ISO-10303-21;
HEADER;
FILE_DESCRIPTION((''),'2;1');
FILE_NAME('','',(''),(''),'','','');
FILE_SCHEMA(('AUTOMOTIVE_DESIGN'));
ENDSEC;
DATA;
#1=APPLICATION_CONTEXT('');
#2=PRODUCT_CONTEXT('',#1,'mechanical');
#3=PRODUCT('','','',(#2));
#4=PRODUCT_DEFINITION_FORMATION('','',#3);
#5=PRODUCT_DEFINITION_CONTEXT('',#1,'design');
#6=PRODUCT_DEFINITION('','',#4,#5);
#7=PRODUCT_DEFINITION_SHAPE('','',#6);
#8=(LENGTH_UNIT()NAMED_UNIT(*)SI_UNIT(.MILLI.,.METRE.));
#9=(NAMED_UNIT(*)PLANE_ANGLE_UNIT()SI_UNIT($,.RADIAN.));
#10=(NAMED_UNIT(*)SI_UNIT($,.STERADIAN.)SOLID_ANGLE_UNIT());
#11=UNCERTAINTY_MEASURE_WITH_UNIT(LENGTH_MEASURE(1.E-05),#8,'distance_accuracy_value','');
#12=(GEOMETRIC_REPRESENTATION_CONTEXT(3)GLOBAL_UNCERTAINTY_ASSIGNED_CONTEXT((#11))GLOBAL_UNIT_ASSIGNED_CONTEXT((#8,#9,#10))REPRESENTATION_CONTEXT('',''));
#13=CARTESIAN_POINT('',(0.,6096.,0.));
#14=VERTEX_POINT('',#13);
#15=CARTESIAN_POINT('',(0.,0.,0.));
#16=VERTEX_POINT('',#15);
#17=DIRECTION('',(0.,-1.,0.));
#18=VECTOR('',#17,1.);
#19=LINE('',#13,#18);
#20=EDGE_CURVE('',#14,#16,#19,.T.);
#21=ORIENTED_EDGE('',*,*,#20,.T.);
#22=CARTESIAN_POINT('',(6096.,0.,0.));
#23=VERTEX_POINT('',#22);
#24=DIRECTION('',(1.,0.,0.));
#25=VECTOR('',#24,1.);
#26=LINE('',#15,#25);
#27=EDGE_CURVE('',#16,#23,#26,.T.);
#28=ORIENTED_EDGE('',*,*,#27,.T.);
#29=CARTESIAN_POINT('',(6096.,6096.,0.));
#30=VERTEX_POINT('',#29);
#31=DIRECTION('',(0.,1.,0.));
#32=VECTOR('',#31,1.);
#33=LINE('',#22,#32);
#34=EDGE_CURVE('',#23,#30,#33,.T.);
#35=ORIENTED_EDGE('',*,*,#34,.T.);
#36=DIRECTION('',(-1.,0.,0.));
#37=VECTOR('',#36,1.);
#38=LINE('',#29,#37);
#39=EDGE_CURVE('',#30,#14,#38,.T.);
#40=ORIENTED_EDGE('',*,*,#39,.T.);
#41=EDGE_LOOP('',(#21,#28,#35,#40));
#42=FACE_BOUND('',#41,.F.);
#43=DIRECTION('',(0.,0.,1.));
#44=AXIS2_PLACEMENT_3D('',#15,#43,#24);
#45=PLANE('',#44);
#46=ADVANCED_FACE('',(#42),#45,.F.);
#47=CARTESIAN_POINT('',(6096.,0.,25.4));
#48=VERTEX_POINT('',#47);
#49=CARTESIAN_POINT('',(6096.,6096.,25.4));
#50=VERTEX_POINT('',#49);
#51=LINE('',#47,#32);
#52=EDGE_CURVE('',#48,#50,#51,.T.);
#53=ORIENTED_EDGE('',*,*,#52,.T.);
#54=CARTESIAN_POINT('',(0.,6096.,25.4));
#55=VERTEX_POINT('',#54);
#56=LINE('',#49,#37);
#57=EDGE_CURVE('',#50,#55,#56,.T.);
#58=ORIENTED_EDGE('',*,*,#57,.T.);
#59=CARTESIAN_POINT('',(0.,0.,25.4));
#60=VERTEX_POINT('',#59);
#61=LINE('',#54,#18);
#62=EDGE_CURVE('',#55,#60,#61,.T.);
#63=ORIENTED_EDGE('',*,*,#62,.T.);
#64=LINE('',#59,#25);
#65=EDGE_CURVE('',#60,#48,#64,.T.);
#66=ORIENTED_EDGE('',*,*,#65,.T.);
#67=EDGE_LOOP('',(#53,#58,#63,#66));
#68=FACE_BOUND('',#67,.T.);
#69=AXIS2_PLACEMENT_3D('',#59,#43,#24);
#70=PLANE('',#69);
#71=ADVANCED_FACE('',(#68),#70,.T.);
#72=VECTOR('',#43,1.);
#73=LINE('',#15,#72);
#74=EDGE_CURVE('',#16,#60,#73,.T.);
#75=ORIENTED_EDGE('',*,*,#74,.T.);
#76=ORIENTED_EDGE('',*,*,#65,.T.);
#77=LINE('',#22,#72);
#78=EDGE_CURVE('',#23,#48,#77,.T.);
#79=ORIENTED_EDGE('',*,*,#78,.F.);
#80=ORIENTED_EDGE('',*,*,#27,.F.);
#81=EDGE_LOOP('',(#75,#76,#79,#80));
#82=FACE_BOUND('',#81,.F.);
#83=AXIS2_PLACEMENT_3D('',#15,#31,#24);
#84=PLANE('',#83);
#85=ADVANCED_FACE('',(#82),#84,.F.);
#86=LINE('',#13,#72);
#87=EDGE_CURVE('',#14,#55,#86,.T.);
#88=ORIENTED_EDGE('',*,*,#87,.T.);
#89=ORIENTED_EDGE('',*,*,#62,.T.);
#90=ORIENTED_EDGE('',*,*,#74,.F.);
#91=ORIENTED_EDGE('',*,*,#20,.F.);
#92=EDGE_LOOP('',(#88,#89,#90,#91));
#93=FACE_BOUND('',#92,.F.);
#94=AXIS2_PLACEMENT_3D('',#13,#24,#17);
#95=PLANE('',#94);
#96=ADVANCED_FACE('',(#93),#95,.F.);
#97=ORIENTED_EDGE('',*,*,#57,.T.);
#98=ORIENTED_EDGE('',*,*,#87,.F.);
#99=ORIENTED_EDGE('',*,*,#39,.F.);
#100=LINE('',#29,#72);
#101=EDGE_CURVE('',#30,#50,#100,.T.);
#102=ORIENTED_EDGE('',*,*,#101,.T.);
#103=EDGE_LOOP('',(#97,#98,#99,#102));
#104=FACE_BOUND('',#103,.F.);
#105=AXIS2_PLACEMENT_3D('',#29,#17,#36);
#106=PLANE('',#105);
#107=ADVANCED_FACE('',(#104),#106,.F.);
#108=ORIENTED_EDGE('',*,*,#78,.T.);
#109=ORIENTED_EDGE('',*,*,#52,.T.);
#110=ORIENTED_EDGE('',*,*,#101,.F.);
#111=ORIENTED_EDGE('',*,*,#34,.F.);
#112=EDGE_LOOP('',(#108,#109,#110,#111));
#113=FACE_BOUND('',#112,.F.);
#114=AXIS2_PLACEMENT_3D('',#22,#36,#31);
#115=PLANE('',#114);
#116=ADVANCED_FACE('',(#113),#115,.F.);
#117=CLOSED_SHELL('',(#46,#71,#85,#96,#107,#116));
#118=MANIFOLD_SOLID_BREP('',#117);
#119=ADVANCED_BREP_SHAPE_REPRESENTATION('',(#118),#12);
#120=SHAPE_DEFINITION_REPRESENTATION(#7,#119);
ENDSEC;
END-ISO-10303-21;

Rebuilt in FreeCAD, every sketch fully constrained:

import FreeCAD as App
import Part
import Sketcher

V = App.Vector
Q = App.Units.Quantity

doc = App.newDocument("Part")
params = doc.addObject("Spreadsheet::Sheet", "Params")
for row, (alias, value) in enumerate([
    ("sketch1_width", "240 in"),
    ("pad1_length", "1 in"),
], start=1):
    params.set(f"A{row}", alias)
    params.set(f"B{row}", "=" + value)
    params.setAlias(f"B{row}", alias)

body = doc.addObject("PartDesign::Body", "Body")

sketch1 = body.newObject("Sketcher::SketchObject", "Sketch")
sketch1.AttachmentSupport = (doc.getObject("XY_Plane"), [""])
sketch1.MapMode = "FlatFace"
sketch1.addGeometry([
    Part.LineSegment(V(0, 6096, 0), V(0, 0, 0)),
    Part.LineSegment(V(0, 0, 0), V(6096, 0, 0)),
    Part.LineSegment(V(6096, 0, 0), V(6096, 6096, 0)),
    Part.LineSegment(V(6096, 6096, 0), V(0, 6096, 0)),
], False)
sketch1.addConstraint([
    Sketcher.Constraint("Coincident", 0, 2, 1, 1),
    Sketcher.Constraint("Coincident", 1, 2, 2, 1),
    Sketcher.Constraint("Coincident", 2, 2, 3, 1),
    Sketcher.Constraint("Coincident", 3, 2, 0, 1),
    Sketcher.Constraint("Vertical", 0),
    Sketcher.Constraint("Horizontal", 1),
    Sketcher.Constraint("Vertical", 2),
    Sketcher.Constraint("Horizontal", 3),
    Sketcher.Constraint("Coincident", 0, 2, -1, 1),
    Sketcher.Constraint("Equal", 3, 0),
    Sketcher.Constraint("DistanceX", 1, 1, 1, 2, Q("240 in")),
])
sketch1.setExpression("Constraints[10]", "Params.sketch1_width")
pad1 = body.newObject("PartDesign::Pad", "Pad")
pad1.Profile = sketch1
pad1.setExpression("Length", "Params.pad1_length")

doc.recompute()
